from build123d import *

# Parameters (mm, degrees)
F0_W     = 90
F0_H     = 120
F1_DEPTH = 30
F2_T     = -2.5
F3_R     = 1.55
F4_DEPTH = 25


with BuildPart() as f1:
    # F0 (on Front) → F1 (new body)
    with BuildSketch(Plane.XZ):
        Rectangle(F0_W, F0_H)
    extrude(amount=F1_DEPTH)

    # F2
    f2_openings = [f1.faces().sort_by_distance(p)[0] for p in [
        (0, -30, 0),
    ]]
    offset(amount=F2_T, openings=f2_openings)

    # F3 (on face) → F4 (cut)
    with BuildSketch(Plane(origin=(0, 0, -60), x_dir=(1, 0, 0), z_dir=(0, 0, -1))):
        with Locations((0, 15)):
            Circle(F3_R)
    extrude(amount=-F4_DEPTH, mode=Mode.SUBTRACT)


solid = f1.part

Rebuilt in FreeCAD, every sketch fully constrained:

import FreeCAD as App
import Part
import Sketcher
Q = App.Units.Quantity


def faces_at(feature, points):
    """Names of the faces that lie closest to the given points."""
    faces = feature.Shape.Faces
    near = lambda p: min(range(len(faces)), key=lambda i: faces[i].distToShape(Part.Vertex(*p))[0])
    return sorted({f"Face{near(p) + 1}" for p in points})

doc = App.newDocument("Part")
body = doc.addObject("PartDesign::Body", "Body")

# Sketch on XZ plane
sketch1 = body.newObject("Sketcher::SketchObject", "Sketch")
sketch1.AttachmentSupport = (doc.getObject("XZ_Plane"), [""])
sketch1.MapMode = "FlatFace"
sketch1.addGeometry([
    Part.LineSegment(App.Vector(-45, 60, 0), App.Vector(-45, -60, 0)),
    Part.LineSegment(App.Vector(-45, -60, 0), App.Vector(45, -60, 0)),
    Part.LineSegment(App.Vector(45, -60, 0), App.Vector(45, 60, 0)),
    Part.LineSegment(App.Vector(45, 60, 0), App.Vector(-45, 60, 0)),
], False)
sketch1.addConstraint([
    Sketcher.Constraint("Coincident", 0, 2, 1, 1),
    Sketcher.Constraint("Coincident", 1, 2, 2, 1),
    Sketcher.Constraint("Coincident", 2, 2, 3, 1),
    Sketcher.Constraint("Coincident", 3, 2, 0, 1),
    Sketcher.Constraint("Vertical", 0),
    Sketcher.Constraint("Horizontal", 1),
    Sketcher.Constraint("Vertical", 2),
    Sketcher.Constraint("Horizontal", 3),
    Sketcher.Constraint("Symmetric", 0, 2, 2, 2, -1, 1),
    Sketcher.Constraint("DistanceX", 1, 1, 1, 2, Q("90 mm")),
    Sketcher.Constraint("DistanceY", 0, 2, 0, 1, Q("120 mm")),
])
pad1 = body.newObject("PartDesign::Pad", "Pad")
pad1.Profile = sketch1
pad1.Length = 30
doc.recompute()

thickness = body.newObject("PartDesign::Thickness", "Thickness")
thickness.Base = (pad1, faces_at(pad1, [(0, -30, 0)]))
thickness.Value = 2.5
thickness.Reversed = True
thickness.Join = "Arc"

# Sketch on XY plane
sketch2 = body.newObject("Sketcher::SketchObject", "Sketch001")
sketch2.AttachmentSupport = (doc.getObject("XY_Plane"), [""])
sketch2.MapMode = "FlatFace"
sketch2.AttachmentOffset = App.Placement(App.Vector(0, 0, -60), App.Rotation())
sketch2.addGeometry(Part.Circle(App.Vector(0, -15, 0), App.Vector(0, 0, 1), 1.6), False)
sketch2.addConstraint([
    Sketcher.Constraint("PointOnObject", 0, 3, -2),
    Sketcher.Constraint("Diameter", 0, Q("3.1 mm")),
    Sketcher.Constraint("DistanceY", 0, 3, -1, 1, Q("15 mm")),
])
pocket1 = body.newObject("PartDesign::Pocket", "Pocket")
pocket1.Profile = sketch2
pocket1.Length = 25
pocket1.Reversed = True

doc.recompute()
